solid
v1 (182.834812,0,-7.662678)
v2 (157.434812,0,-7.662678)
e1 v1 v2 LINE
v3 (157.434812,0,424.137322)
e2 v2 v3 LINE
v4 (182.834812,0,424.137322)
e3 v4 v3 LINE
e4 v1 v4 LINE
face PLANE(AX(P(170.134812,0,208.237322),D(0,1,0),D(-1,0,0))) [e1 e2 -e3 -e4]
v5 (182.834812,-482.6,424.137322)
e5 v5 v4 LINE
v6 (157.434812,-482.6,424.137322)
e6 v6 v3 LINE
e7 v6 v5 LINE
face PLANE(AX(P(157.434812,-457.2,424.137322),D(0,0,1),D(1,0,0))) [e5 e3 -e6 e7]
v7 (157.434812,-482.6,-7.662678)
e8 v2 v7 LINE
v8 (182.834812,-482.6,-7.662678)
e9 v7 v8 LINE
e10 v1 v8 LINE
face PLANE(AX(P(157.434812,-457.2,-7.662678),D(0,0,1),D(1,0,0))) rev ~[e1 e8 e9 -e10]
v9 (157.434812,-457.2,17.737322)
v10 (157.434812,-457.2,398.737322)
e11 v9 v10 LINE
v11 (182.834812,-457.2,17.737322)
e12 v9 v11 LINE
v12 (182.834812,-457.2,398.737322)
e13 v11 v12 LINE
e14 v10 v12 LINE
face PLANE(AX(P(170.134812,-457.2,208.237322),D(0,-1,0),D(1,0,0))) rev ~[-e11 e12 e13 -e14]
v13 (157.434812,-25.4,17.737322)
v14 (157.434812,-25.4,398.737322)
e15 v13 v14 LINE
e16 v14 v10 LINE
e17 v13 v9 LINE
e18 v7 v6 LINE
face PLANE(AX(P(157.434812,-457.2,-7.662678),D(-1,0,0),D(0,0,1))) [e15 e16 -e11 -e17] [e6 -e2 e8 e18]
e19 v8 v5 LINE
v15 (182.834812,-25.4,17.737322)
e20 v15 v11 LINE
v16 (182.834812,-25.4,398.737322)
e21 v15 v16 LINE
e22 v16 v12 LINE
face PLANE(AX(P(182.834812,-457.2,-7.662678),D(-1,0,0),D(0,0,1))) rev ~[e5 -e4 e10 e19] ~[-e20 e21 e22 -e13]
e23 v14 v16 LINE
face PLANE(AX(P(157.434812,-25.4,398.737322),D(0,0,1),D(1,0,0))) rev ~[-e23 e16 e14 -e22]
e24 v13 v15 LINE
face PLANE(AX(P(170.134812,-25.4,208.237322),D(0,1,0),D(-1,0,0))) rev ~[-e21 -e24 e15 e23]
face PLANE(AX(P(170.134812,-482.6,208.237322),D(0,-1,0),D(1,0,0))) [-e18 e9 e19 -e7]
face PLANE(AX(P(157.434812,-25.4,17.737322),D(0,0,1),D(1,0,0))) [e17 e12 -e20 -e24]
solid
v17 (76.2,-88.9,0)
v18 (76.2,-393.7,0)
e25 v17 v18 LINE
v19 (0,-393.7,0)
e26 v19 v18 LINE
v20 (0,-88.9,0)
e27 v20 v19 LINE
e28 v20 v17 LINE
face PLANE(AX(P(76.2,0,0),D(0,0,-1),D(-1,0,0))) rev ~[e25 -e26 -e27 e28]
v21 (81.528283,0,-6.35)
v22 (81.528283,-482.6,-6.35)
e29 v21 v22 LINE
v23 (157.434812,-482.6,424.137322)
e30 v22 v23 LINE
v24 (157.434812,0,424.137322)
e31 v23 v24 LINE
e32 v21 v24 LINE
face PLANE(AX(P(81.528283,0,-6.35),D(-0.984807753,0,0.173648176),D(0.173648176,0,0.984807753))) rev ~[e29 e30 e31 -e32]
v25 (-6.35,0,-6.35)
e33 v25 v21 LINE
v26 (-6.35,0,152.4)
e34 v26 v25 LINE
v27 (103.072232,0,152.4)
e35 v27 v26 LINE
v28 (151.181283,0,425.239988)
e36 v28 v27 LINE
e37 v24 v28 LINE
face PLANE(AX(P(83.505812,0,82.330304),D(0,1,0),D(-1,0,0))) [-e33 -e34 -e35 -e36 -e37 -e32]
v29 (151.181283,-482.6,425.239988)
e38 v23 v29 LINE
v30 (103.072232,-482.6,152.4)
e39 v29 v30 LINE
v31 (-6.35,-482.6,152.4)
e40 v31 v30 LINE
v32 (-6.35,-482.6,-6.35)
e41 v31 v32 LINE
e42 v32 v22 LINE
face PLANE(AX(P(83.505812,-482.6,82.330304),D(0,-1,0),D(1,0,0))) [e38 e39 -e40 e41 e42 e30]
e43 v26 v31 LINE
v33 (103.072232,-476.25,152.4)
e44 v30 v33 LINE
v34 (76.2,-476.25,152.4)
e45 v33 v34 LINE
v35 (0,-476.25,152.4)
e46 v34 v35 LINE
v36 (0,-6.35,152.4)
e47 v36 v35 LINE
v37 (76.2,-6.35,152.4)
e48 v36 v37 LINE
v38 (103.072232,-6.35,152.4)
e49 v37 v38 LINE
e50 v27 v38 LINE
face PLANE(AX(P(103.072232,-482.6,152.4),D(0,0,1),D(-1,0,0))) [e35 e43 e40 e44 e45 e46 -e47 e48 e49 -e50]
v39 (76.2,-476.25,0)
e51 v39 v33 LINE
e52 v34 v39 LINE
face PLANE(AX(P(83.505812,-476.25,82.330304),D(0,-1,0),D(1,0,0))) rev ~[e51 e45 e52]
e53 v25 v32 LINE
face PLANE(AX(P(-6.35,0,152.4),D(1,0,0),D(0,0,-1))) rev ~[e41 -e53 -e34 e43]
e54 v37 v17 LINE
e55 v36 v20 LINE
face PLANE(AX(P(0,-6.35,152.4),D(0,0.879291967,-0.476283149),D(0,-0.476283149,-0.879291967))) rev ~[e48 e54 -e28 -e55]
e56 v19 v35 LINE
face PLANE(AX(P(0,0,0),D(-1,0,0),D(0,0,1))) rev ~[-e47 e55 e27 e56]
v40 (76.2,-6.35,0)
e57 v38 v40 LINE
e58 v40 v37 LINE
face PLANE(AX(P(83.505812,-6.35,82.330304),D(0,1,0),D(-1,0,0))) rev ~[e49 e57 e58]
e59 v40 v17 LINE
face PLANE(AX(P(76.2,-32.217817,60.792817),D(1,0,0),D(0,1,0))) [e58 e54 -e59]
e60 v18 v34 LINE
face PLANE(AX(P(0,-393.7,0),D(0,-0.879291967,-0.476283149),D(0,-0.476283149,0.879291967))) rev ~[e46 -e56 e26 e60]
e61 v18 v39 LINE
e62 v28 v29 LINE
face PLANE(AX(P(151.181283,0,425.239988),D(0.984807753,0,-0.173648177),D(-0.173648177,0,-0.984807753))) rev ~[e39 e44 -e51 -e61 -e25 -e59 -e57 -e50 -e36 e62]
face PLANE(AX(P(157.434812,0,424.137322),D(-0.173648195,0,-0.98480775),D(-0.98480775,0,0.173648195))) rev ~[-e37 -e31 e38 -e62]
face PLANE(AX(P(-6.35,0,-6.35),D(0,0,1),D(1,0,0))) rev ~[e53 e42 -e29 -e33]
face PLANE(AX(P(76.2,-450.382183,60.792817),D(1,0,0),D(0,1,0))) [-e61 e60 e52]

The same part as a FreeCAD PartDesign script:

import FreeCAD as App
import Part
import Sketcher

V = App.Vector
Q = App.Units.Quantity


def add_polygon(sketch, points):
    """Adds a closed chain of lines whose ends are joined by coincident constraints."""
    first, n = sketch.GeometryCount, len(points)
    for a, b in zip(points, points[1:] + points[:1]):
        sketch.addGeometry(Part.LineSegment(App.Vector(*a, 0), App.Vector(*b, 0)), False)
    for i in range(n):
        sketch.addConstraint(Sketcher.Constraint("Coincident", first + i, 2, first + (i + 1) % n, 1))

doc = App.newDocument("Part")
params = doc.addObject("Spreadsheet::Sheet", "Params")
for row, (alias, value) in enumerate([
    ("sketch1_width", "3 in"),
    ("sketch1_height", "6 in"),
    ("sketch1_length", "17 in"),
    ("sketch1_width2", "0.25 in"),
    ("sketch1_height2", "6.25 in"),
    ("pad1_length", "19 in"),
    ("sketch2_height", "6 in"),
    ("sketch2_width", "0.25 in"),
    ("pad2_length", "3 in"),
    ("sketch3_height", "6 in"),
    ("sketch3_width", "0.25 in"),
    ("pad3_length", "3 in"),
    ("sketch4_height", "6 in"),
    ("pad4_length", "0.25 in"),
    ("sketch5_height", "6 in"),
    ("pad5_length", "0.25 in"),
    ("sketch6_height", "6 in"),
    ("sketch6_width", "3.25 in"),
    ("pad6_length", "3 in"),
    ("sketch7_height", "6 in"),
    ("sketch7_width", "3.25 in"),
    ("pad7_length", "3 in"),
    ("sketch8_width", "1 in"),
    ("sketch8_height", "17 in"),
    ("pad8_length", "1 in"),
    ("sketch9_width", "1 in"),
    ("pad9_length", "17 in"),
    ("sketch10_width", "1 in"),
    ("sketch10_height", "17 in"),
    ("pad10_length", "1 in"),
], start=1):
    params.set(f"A{row}", alias)
    params.set(f"B{row}", "=" + value)
    params.setAlias(f"B{row}", alias)

body = doc.addObject("PartDesign::Body", "Body")

# Sketch on XZ plane
sketch1 = body.newObject("Sketcher::SketchObject", "Sketch")
sketch1.AttachmentSupport = (doc.getObject("XZ_Plane"), [""])
sketch1.MapMode = "FlatFace"
add_polygon(sketch1, [(0, 0), (0, 152.4), (-6.35, 152.4), (-6.35, -6.35), (81.528283, -6.35), (157.434812, 424.137322), (151.181283, 425.239988), (76.2, 0)])  # lines 0-7
sketch1.addConstraint([
    Sketcher.Constraint("Vertical", 0),
    Sketcher.Constraint("Horizontal", 1),
    Sketcher.Constraint("Vertical", 2),
    Sketcher.Constraint("Horizontal", 3),
    Sketcher.Constraint("Horizontal", 7),
    Sketcher.Constraint("Coincident", 7, 2, -1, 1),
    Sketcher.Constraint("Perpendicular", 4, 5),
    Sketcher.Constraint("Perpendicular", 5, 6),
    Sketcher.Constraint("DistanceX", 7, 2, 7, 1, Q("3 in")),
    Sketcher.Constraint("DistanceY", 0, 1, 0, 2, Q("6 in")),
    Sketcher.Constraint("Distance", 6, Q("17 in")),
    Sketcher.Constraint("Angle", 4, Q("80 deg")),
    Sketcher.Constraint("DistanceX", 1, 2, 1, 1, Q("0.25 in")),
    Sketcher.Constraint("DistanceY", 2, 2, 2, 1, Q("6.25 in")),
    Sketcher.Constraint("Distance", 5, Q("0.25 in")),
])
sketch1.setExpression("Constraints[16]", "Params.sketch1_width")
sketch1.setExpression("Constraints[17]", "Params.sketch1_height")
sketch1.setExpression("Constraints[18]", "Params.sketch1_length")
sketch1.setExpression("Constraints[20]", "Params.sketch1_width2")
sketch1.setExpression("Constraints[21]", "Params.sketch1_height2")
pad1 = body.newObject("PartDesign::Pad", "Pad")
pad1.Profile = sketch1
pad1.setExpression("Length", "Params.pad1_length")

# Sketch on YZ plane
sketch2 = body.newObject("Sketcher::SketchObject", "Sketch001")
sketch2.AttachmentSupport = (doc.getObject("YZ_Plane"), [""])
sketch2.MapMode = "FlatFace"
add_polygon(sketch2, [(-6.35, 152.4), (-6.35, 0), (0, 0), (0, 152.4)])  # lines 0-3
sketch2.addConstraint([
    Sketcher.Constraint("Vertical", 0),
    Sketcher.Constraint("Horizontal", 1),
    Sketcher.Constraint("Vertical", 2),
    Sketcher.Constraint("Horizontal", 3),
    Sketcher.Constraint("Coincident", 1, 2, -1, 1),
    Sketcher.Constraint("DistanceY", 0, 2, 0, 1, Q("6 in")),
    Sketcher.Constraint("DistanceX", 1, 1, 1, 2, Q("0.25 in")),
])
sketch2.setExpression("Constraints[9]", "Params.sketch2_height")
sketch2.setExpression("Constraints[10]", "Params.sketch2_width")
pad2 = body.newObject("PartDesign::Pad", "Pad001")
pad2.Profile = sketch2
pad2.setExpression("Length", "Params.pad2_length")

# Sketch on YZ plane
sketch3 = body.newObject("Sketcher::SketchObject", "Sketch002")
sketch3.AttachmentSupport = (doc.getObject("YZ_Plane"), [""])
sketch3.MapMode = "FlatFace"
add_polygon(sketch3, [(-482.6, 152.4), (-482.6, 0), (-476.25, 0), (-476.25, 152.4)])  # lines 0-3
sketch3.addConstraint([
    Sketcher.Constraint("Vertical", 0),
    Sketcher.Constraint("Horizontal", 1),
    Sketcher.Constraint("Vertical", 2),
    Sketcher.Constraint("Horizontal", 3),
    Sketcher.Constraint("PointOnObject", 0, 2, -1),
    Sketcher.Constraint("DistanceY", 0, 2, 0, 1, Q("6 in")),
    Sketcher.Constraint("DistanceX", 0, 2, -1, 1, Q("19 in")),
    Sketcher.Constraint("DistanceX", 1, 1, 1, 2, Q("0.25 in")),
])
sketch3.setExpression("Constraints[9]", "Params.sketch3_height")
sketch3.setExpression("Constraints[11]", "Params.sketch3_width")
pad3 = body.newObject("PartDesign::Pad", "Pad002")
pad3.Profile = sketch3
pad3.setExpression("Length", "Params.pad3_length")

# Sketch on XZ plane
sketch4 = body.newObject("Sketcher::SketchObject", "Sketch003")
sketch4.AttachmentSupport = (doc.getObject("XZ_Plane"), [""])
sketch4.MapMode = "FlatFace"
add_polygon(sketch4, [(76.2, 0), (76.2, 152.4), (103.072232, 152.4)])  # lines 0-2
sketch4.addConstraint([
    Sketcher.Constraint("Vertical", 0),
    Sketcher.Constraint("Horizontal", 1),
    Sketcher.Constraint("PointOnObject", 2, 2, -1),
    Sketcher.Constraint("DistanceY", 0, 1, 0, 2, Q("6 in")),
    Sketcher.Constraint("DistanceX", -1, 1, 0, 2, Q("3 in")),
    Sketcher.Constraint("Angle", 2, Q("-100 deg")),
])
sketch4.setExpression("Constraints[6]", "Params.sketch4_height")
pad4 = body.newObject("PartDesign::Pad", "Pad003")
pad4.Profile = sketch4
pad4.setExpression("Length", "Params.pad4_length")

# Sketch on XZ plane
sketch5 = body.newObject("Sketcher::SketchObject", "Sketch004")
sketch5.AttachmentSupport = (doc.getObject("XZ_Plane"), [""])
sketch5.MapMode = "FlatFace"
sketch5.AttachmentOffset = App.Placement(V(0, 0, 19 * 25.4), App.Rotation())
add_polygon(sketch5, [(103.072232, 152.4), (76.2, 152.4), (76.2, 0)])  # lines 0-2
sketch5.addConstraint([
    Sketcher.Constraint("Horizontal", 0),
    Sketcher.Constraint("Vertical", 1),
    Sketcher.Constraint("PointOnObject", 1, 2, -1),
    Sketcher.Constraint("DistanceY", 1, 2, 1, 1, Q("6 in")),
    Sketcher.Constraint("DistanceX", -1, 1, 0, 2, Q("3 in")),
    Sketcher.Constraint("Angle", 2, Q("80 deg")),
])
sketch5.setExpression("Constraints[6]", "Params.sketch5_height")
pad5 = body.newObject("PartDesign::Pad", "Pad004")
pad5.Profile = sketch5
pad5.setExpression("Length", "Params.pad5_length")
pad5.Reversed = True

# Sketch on YZ plane
sketch6 = body.newObject("Sketcher::SketchObject", "Sketch005")
sketch6.AttachmentSupport = (doc.getObject("YZ_Plane"), [""])
sketch6.MapMode = "FlatFace"
add_polygon(sketch6, [(-6.35, 152.4), (-88.9, 0), (-6.35, 0)])  # lines 0-2
sketch6.addConstraint([
    Sketcher.Constraint("Horizontal", 1),
    Sketcher.Constraint("Vertical", 2),
    Sketcher.Constraint("PointOnObject", 0, 2, -1),
    Sketcher.Constraint("DistanceY", 2, 1, 2, 2, Q("6 in")),
    Sketcher.Constraint("DistanceX", 1, 1, 1, 2, Q("3.25 in")),
    Sketcher.Constraint("DistanceX", 0, 2, -1, 1, Q("3.5 in")),
])
sketch6.setExpression("Constraints[6]", "Params.sketch6_height")
sketch6.setExpression("Constraints[7]", "Params.sketch6_width")
pad6 = body.newObject("PartDesign::Pad", "Pad005")
pad6.Profile = sketch6
pad6.setExpression("Length", "Params.pad6_length")

# Sketch on YZ plane
sketch7 = body.newObject("Sketcher::SketchObject", "Sketch006")
sketch7.AttachmentSupport = (doc.getObject("YZ_Plane"), [""])
sketch7.MapMode = "FlatFace"
add_polygon(sketch7, [(-476.25, 152.4), (-476.25, 0), (-393.7, 0)])  # lines 0-2
sketch7.addConstraint([
    Sketcher.Constraint("Vertical", 0),
    Sketcher.Constraint("Horizontal", 1),
    Sketcher.Constraint("PointOnObject", 0, 2, -1),
    Sketcher.Constraint("DistanceY", 0, 2, 0, 1, Q("6 in")),
    Sketcher.Constraint("DistanceX", 1, 1, 1, 2, Q("3.25 in")),
    Sketcher.Constraint("DistanceX", 1, 2, -1, 1, Q("15.5 in")),
])
sketch7.setExpression("Constraints[6]", "Params.sketch7_height")
sketch7.setExpression("Constraints[7]", "Params.sketch7_width")
pad7 = body.newObject("PartDesign::Pad", "Pad006")
pad7.Profile = sketch7
pad7.setExpression("Length", "Params.pad7_length")
body2 = doc.addObject("PartDesign::Body", "Body001")

# Sketch on XZ plane
sketch8 = body2.newObject("Sketcher::SketchObject", "Sketch007")
sketch8.AttachmentSupport = (doc.getObject("XZ_Plane001"), [""])
sketch8.MapMode = "FlatFace"
add_polygon(sketch8, [(182.834812, 424.137322), (182.834812, -7.662678), (157.434812, -7.662678), (157.434812, 424.137322)])  # lines 0-3
sketch8.addConstraint([
    Sketcher.Constraint("Vertical", 0),
    Sketcher.Constraint("Horizontal", 1),
    Sketcher.Constraint("Vertical", 2),
    Sketcher.Constraint("Horizontal", 3),
    Sketcher.Constraint("DistanceX", 1, 2, 1, 1, Q("1 in")),
    Sketcher.Constraint("DistanceY", 0, 2, 0, 1, Q("17 in")),
    Sketcher.Constraint("DistanceX", -1, 1, 0, 2, 182.834812),
    Sketcher.Constraint("DistanceY", -1, 1, 2, 2, 424.137322),
])
sketch8.setExpression("Constraints[8]", "Params.sketch8_width")
sketch8.setExpression("Constraints[9]", "Params.sketch8_height")
pad8 = body2.newObject("PartDesign::Pad", "Pad007")
pad8.Profile = sketch8
pad8.setExpression("Length", "Params.pad8_length")
body.AllowCompound = True
doc.recompute()

boolean = body.newObject("PartDesign::Boolean", "Boolean")
boolean.Type = "Fuse"
boolean.addObjects([body2])

# Sketch on XZ plane
sketch9 = body.newObject("Sketcher::SketchObject", "Sketch008")
sketch9.AttachmentSupport = (doc.getObject("XZ_Plane"), [""])
sketch9.MapMode = "FlatFace"
sketch9.AttachmentOffset = App.Placement(V(0, 0, 1 * 25.4), App.Rotation())
add_polygon(sketch9, [(157.434812, 17.737322), (157.434812, -7.662678), (182.834812, -7.662678), (182.834812, 17.737322)])  # lines 0-3
add_polygon(sketch9, [(157.434812, 424.137322), (157.434812, 398.737322), (182.834812, 398.737322), (182.834812, 424.137322)])  # lines 4-7
sketch9.addConstraint([
    Sketcher.Constraint("Vertical", 0),
    Sketcher.Constraint("Horizontal", 1),
    Sketcher.Constraint("Vertical", 2),
    Sketcher.Constraint("Horizontal", 3),
    Sketcher.Constraint("Vertical", 4),
    Sketcher.Constraint("Horizontal", 5),
    Sketcher.Constraint("Vertical", 6),
    Sketcher.Constraint("Horizontal", 7),
    Sketcher.Constraint("Vertical", 3, 2, 4, 2),
    Sketcher.Constraint("Vertical", 2, 2, 5, 2),
    Sketcher.Constraint("Equal", 7, 0),
    Sketcher.Constraint("Equal", 2, 4),
    Sketcher.Constraint("DistanceX", 1, 1, 1, 2, Q("1 in")),
    Sketcher.Constraint("DistanceY", 3, 2, 4, 2, Q("15 in")),
    Sketcher.Constraint("DistanceX", -1, 1, 0, 2, 157.434812),
    Sketcher.Constraint("DistanceY", -1, 1, 2, 2, 17.737322),
])
sketch9.setExpression("Constraints[20]", "Params.sketch9_width")
pad9 = body.newObject("PartDesign::Pad", "Pad008")
pad9.Profile = sketch9
pad9.setExpression("Length", "Params.pad9_length")

# Sketch on XZ plane
sketch10 = body.newObject("Sketcher::SketchObject", "Sketch009")
sketch10.AttachmentSupport = (doc.getObject("XZ_Plane"), [""])
sketch10.MapMode = "FlatFace"
sketch10.AttachmentOffset = App.Placement(V(0, 0, 18 * 25.4), App.Rotation())
add_polygon(sketch10, [(157.434812, 424.137322), (157.434812, -7.662678), (182.834812, -7.662678), (182.834812, 424.137322)])  # lines 0-3
sketch10.addConstraint([
    Sketcher.Constraint("Vertical", 0),
    Sketcher.Constraint("Horizontal", 1),
    Sketcher.Constraint("Vertical", 2),
    Sketcher.Constraint("Horizontal", 3),
    Sketcher.Constraint("DistanceX", 1, 1, 1, 2, Q("1 in")),
    Sketcher.Constraint("DistanceY", 0, 2, 0, 1, Q("17 in")),
    Sketcher.Constraint("DistanceX", -1, 1, 0, 2, 157.434812),
    Sketcher.Constraint("DistanceY", -1, 1, 2, 2, 424.137322),
])
sketch10.setExpression("Constraints[8]", "Params.sketch10_width")
sketch10.setExpression("Constraints[9]", "Params.sketch10_height")
pad10 = body.newObject("PartDesign::Pad", "Pad009")
pad10.Profile = sketch10
pad10.setExpression("Length", "Params.pad10_length")

doc.recompute()
